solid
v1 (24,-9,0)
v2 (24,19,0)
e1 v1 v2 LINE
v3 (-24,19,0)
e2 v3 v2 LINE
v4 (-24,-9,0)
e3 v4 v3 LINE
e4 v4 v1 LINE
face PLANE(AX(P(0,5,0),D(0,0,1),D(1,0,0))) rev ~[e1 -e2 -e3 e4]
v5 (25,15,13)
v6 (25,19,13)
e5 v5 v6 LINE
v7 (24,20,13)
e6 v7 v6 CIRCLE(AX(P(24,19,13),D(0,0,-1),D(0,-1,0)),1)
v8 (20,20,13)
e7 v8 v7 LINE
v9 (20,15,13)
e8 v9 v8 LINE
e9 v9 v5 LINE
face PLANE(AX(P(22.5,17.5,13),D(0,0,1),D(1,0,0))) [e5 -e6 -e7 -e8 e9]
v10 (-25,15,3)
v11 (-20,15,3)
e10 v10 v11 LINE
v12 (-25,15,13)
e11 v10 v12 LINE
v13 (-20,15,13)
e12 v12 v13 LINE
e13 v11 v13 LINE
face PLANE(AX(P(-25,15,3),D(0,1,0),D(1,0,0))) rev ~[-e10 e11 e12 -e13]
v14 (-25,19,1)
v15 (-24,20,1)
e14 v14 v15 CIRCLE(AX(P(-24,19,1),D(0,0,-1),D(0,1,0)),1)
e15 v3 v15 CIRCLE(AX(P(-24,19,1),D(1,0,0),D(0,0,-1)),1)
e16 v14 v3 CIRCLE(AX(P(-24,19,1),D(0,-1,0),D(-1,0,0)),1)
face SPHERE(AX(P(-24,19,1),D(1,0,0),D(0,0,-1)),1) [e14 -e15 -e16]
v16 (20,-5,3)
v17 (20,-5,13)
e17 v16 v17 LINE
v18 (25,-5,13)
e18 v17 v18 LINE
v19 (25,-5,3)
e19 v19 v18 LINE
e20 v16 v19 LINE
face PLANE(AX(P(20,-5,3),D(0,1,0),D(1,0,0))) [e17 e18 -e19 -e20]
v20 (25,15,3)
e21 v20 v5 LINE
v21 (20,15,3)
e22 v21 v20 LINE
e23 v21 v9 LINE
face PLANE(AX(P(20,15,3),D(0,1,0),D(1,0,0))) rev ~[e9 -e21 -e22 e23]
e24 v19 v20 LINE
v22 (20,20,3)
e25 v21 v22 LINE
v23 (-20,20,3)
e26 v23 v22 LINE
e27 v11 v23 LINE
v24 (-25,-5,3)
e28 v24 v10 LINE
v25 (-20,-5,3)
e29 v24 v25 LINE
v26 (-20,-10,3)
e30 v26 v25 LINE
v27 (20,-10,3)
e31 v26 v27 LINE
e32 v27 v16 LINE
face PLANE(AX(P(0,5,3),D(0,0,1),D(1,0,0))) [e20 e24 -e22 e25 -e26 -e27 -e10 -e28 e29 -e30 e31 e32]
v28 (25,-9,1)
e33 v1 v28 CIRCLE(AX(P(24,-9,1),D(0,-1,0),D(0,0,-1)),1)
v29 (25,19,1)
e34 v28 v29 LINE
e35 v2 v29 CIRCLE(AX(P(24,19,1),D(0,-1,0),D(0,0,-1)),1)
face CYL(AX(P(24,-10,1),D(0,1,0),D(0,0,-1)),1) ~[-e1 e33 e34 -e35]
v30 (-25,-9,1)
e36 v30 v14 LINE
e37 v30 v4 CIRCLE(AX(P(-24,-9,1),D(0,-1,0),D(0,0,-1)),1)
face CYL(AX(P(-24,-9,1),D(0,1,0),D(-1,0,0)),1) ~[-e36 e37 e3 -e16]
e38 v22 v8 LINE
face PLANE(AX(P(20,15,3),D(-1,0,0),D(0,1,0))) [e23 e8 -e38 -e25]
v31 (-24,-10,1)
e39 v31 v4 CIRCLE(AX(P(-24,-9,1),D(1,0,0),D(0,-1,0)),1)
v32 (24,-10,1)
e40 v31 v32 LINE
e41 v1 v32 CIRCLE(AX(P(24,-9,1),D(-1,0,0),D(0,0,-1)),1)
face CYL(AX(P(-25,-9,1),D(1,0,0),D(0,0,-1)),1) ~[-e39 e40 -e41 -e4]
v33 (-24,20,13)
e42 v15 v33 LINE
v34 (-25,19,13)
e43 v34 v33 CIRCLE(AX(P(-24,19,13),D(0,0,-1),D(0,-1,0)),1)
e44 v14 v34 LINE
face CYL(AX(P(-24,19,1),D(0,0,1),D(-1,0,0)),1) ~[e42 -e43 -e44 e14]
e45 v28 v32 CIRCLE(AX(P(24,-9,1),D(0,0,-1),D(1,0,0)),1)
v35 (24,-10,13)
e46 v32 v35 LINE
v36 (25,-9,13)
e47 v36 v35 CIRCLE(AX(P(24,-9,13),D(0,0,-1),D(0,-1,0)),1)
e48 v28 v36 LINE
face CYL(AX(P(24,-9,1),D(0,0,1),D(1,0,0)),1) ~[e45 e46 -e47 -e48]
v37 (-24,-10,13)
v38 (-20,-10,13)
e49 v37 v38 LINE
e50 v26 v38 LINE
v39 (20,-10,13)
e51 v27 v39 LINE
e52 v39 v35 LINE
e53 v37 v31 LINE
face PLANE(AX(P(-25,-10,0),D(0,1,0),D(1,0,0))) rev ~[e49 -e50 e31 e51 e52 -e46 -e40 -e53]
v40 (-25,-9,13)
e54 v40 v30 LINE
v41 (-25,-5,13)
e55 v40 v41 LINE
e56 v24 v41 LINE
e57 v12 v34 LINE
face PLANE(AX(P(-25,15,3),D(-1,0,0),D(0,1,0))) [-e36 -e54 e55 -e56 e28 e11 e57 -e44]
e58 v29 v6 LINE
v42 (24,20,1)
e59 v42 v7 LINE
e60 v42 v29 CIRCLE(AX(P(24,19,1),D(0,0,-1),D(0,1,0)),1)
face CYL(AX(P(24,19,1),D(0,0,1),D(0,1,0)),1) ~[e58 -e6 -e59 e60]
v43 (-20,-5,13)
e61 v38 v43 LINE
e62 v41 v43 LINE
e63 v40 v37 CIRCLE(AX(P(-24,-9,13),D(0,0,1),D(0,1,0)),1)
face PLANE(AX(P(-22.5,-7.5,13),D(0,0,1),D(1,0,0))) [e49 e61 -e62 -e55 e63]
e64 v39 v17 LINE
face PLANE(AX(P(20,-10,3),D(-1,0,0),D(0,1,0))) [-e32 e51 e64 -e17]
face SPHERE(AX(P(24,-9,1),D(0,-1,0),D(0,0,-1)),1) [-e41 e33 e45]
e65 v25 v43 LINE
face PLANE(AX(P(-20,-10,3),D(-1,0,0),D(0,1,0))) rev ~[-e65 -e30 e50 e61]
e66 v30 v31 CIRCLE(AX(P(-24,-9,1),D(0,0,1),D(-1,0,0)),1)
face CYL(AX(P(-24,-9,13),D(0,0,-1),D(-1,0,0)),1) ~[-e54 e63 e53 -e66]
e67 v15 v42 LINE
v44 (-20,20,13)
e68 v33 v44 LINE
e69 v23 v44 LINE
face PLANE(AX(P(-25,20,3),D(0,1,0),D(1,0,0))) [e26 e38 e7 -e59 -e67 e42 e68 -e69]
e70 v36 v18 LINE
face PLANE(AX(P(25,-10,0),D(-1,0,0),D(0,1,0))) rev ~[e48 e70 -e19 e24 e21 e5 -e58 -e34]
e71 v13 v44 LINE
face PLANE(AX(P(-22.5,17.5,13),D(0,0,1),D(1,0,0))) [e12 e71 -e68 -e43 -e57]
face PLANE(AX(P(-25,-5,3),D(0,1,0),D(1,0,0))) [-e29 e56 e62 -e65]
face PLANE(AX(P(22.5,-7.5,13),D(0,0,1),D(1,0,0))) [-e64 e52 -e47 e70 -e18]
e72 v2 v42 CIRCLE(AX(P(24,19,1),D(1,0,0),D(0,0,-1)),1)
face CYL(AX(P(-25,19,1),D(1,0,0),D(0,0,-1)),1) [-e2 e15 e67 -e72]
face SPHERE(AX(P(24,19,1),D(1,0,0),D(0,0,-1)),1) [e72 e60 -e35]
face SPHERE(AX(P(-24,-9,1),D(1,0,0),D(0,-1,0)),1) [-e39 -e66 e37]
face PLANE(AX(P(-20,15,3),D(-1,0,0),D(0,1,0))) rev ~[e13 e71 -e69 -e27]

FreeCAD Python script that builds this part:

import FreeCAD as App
import Part
import Sketcher
from FreeCAD import Vector


def edges_at(feature, points):
    """Names of the edges that pass closest to the given points."""
    edges = feature.Shape.Edges
    near = lambda p: min(range(len(edges)), key=lambda i: edges[i].distToShape(Part.Vertex(*p))[0])
    return sorted({f"Edge{near(p) + 1}" for p in points})

doc = App.newDocument("Part")
params = doc.addObject("Spreadsheet::Sheet", "Params")
for row, (alias, value) in enumerate([
    ("sketch1_width", "50 mm"),
    ("sketch1_height", "30 mm"),
    ("pad1_length", "3 mm"),
    ("sketch2_width", "5 mm"),
    ("pad2_length", "10 mm"),
    ("fillet_radius", "1 mm"),
    ("fillet2_radius", "1 mm"),
    ("fillet3_radius", "1 mm"),
    ("fillet4_radius", "1 mm"),
], start=1):
    params.set(f"A{row}", alias)
    params.set(f"B{row}", "=" + value)
    params.setAlias(f"B{row}", alias)

body = doc.addObject("PartDesign::Body", "Body")

# Sketch on XY plane
sketch1 = body.newObject("Sketcher::SketchObject", "Sketch")
sketch1.AttachmentSupport = (doc.getObject("XY_Plane"), [""])
sketch1.MapMode = "FlatFace"
sketch1.addGeometry([
    Part.LineSegment(Vector(-25, 20, 0), Vector(-25, -10, 0)),
    Part.LineSegment(Vector(-25, -10, 0), Vector(25, -10, 0)),
    Part.LineSegment(Vector(25, -10, 0), Vector(25, 20, 0)),
    Part.LineSegment(Vector(25, 20, 0), Vector(-25, 20, 0)),
], False)
sketch1.addConstraint([
    Sketcher.Constraint("Coincident", 0, 2, 1, 1),
    Sketcher.Constraint("Coincident", 1, 2, 2, 1),
    Sketcher.Constraint("Coincident", 2, 2, 3, 1),
    Sketcher.Constraint("Coincident", 3, 2, 0, 1),
    Sketcher.Constraint("Vertical", 0),
    Sketcher.Constraint("Horizontal", 1),
    Sketcher.Constraint("Vertical", 2),
    Sketcher.Constraint("Horizontal", 3),
    Sketcher.Constraint("DistanceX", 1, 1, 1, 2, 50.0),
    Sketcher.Constraint("DistanceY", 0, 2, 0, 1, 30.0),
    Sketcher.Constraint("DistanceX", 0, 2, -1, 1, 25.0),
    Sketcher.Constraint("DistanceY", 0, 2, -1, 1, 10.0),
])
sketch1.setExpression("Constraints[8]", "Params.sketch1_width")
sketch1.setExpression("Constraints[9]", "Params.sketch1_height")
pad1 = body.newObject("PartDesign::Pad", "Pad")
pad1.Profile = sketch1
pad1.setExpression("Length", "Params.pad1_length")

# Sketch on XY plane
sketch2 = body.newObject("Sketcher::SketchObject", "Sketch001")
sketch2.AttachmentSupport = (doc.getObject("XY_Plane"), [""])
sketch2.MapMode = "FlatFace"
sketch2.AttachmentOffset = App.Placement(Vector(0, 0, 3), App.Rotation())
sketch2.addGeometry([
    Part.LineSegment(Vector(-25, 20, 0), Vector(-25, 15, 0)),  # 0
    Part.LineSegment(Vector(-25, 15, 0), Vector(-20, 15, 0)),  # 1
    Part.LineSegment(Vector(-20, 15, 0), Vector(-20, 20, 0)),  # 2
    Part.LineSegment(Vector(-20, 20, 0), Vector(-25, 20, 0)),  # 3
    Part.LineSegment(Vector(20, 20, 0), Vector(20, 15, 0)),  # 4
    Part.LineSegment(Vector(20, 15, 0), Vector(25, 15, 0)),  # 5
    Part.LineSegment(Vector(25, 15, 0), Vector(25, 20, 0)),  # 6
    Part.LineSegment(Vector(25, 20, 0), Vector(20, 20, 0)),  # 7
    Part.LineSegment(Vector(20, -5, 0), Vector(20, -10, 0)),  # 8
    Part.LineSegment(Vector(20, -10, 0), Vector(25, -10, 0)),  # 9
    Part.LineSegment(Vector(25, -10, 0), Vector(25, -5, 0)),  # 10
    Part.LineSegment(Vector(25, -5, 0), Vector(20, -5, 0)),  # 11
    Part.LineSegment(Vector(-25, -5, 0), Vector(-25, -10, 0)),  # 12
    Part.LineSegment(Vector(-25, -10, 0), Vector(-20, -10, 0)),  # 13
    Part.LineSegment(Vector(-20, -10, 0), Vector(-20, -5, 0)),  # 14
    Part.LineSegment(Vector(-20, -5, 0), Vector(-25, -5, 0)),  # 15
], False)
sketch2.addConstraint([
    Sketcher.Constraint("Coincident", 0, 2, 1, 1),
    Sketcher.Constraint("Coincident", 1, 2, 2, 1),
    Sketcher.Constraint("Coincident", 2, 2, 3, 1),
    Sketcher.Constraint("Coincident", 3, 2, 0, 1),
    Sketcher.Constraint("Coincident", 4, 2, 5, 1),
    Sketcher.Constraint("Coincident", 5, 2, 6, 1),
    Sketcher.Constraint("Coincident", 6, 2, 7, 1),
    Sketcher.Constraint("Coincident", 7, 2, 4, 1),
    Sketcher.Constraint("Coincident", 8, 2, 9, 1),
    Sketcher.Constraint("Coincident", 9, 2, 10, 1),
    Sketcher.Constraint("Coincident", 10, 2, 11, 1),
    Sketcher.Constraint("Coincident", 11, 2, 8, 1),
    Sketcher.Constraint("Coincident", 12, 2, 13, 1),
    Sketcher.Constraint("Coincident", 13, 2, 14, 1),
    Sketcher.Constraint("Coincident", 14, 2, 15, 1),
    Sketcher.Constraint("Coincident", 15, 2, 12, 1),
    Sketcher.Constraint("Vertical", 0),
    Sketcher.Constraint("Horizontal", 1),
    Sketcher.Constraint("Vertical", 2),
    Sketcher.Constraint("Horizontal", 3),
    Sketcher.Constraint("Vertical", 4),
    Sketcher.Constraint("Horizontal", 5),
    Sketcher.Constraint("Vertical", 6),
    Sketcher.Constraint("Horizontal", 7),
    Sketcher.Constraint("Vertical", 8),
    Sketcher.Constraint("Horizontal", 9),
    Sketcher.Constraint("Vertical", 10),
    Sketcher.Constraint("Horizontal", 11),
    Sketcher.Constraint("Vertical", 12),
    Sketcher.Constraint("Horizontal", 13),
    Sketcher.Constraint("Vertical", 14),
    Sketcher.Constraint("Horizontal", 15),
    Sketcher.Constraint("Symmetric", 1, 2, 4, 2, -2),
    Sketcher.Constraint("Symmetric", 3, 2, 6, 2, -2),
    Sketcher.Constraint("Symmetric", 9, 2, 12, 2, -2),
    Sketcher.Constraint("Symmetric", 11, 2, 14, 2, -2),
    Sketcher.Constraint("Vertical", 7, 2, 8, 2),
    Sketcher.Constraint("Vertical", 6, 2, 9, 2),
    Sketcher.Constraint("Equal", 15, 0),
    Sketcher.Constraint("Equal", 6, 8),
    Sketcher.Constraint("DistanceX", 1, 1, 1, 2, 5.0),
    Sketcher.Constraint("DistanceX", 0, 2, -1, 1, 25.0),
    Sketcher.Constraint("DistanceY", -1, 1, 0, 2, 15.0),
    Sketcher.Constraint("DistanceY", 8, 2, -1, 1, 10.0),
])
sketch2.setExpression("Constraints[40]", "Params.sketch2_width")
pad2 = body.newObject("PartDesign::Pad", "Pad001")
pad2.Profile = sketch2
pad2.setExpression("Length", "Params.pad2_length")
doc.recompute()

fillet = body.newObject("PartDesign::Fillet", "Fillet")
fillet.Base = (pad2, edges_at(pad2, [(0, 20, 0)]))
fillet.setExpression("Radius", "Params.fillet_radius")
doc.recompute()

fillet2 = body.newObject("PartDesign::Fillet", "Fillet001")
fillet2.Base = (fillet, edges_at(fillet, [(25, 4.5, 0)]))
fillet2.setExpression("Radius", "Params.fillet2_radius")
doc.recompute()

fillet3 = body.newObject("PartDesign::Fillet", "Fillet002")
fillet3.Base = (fillet2, edges_at(fillet2, [(-0.5, -10, 0)]))
fillet3.setExpression("Radius", "Params.fillet3_radius")
doc.recompute()

fillet4 = body.newObject("PartDesign::Fillet", "Fillet003")
fillet4.Base = (fillet3, edges_at(fillet3, [(-25, 5, 0)]))
fillet4.setExpression("Radius", "Params.fillet4_radius")

doc.recompute()
